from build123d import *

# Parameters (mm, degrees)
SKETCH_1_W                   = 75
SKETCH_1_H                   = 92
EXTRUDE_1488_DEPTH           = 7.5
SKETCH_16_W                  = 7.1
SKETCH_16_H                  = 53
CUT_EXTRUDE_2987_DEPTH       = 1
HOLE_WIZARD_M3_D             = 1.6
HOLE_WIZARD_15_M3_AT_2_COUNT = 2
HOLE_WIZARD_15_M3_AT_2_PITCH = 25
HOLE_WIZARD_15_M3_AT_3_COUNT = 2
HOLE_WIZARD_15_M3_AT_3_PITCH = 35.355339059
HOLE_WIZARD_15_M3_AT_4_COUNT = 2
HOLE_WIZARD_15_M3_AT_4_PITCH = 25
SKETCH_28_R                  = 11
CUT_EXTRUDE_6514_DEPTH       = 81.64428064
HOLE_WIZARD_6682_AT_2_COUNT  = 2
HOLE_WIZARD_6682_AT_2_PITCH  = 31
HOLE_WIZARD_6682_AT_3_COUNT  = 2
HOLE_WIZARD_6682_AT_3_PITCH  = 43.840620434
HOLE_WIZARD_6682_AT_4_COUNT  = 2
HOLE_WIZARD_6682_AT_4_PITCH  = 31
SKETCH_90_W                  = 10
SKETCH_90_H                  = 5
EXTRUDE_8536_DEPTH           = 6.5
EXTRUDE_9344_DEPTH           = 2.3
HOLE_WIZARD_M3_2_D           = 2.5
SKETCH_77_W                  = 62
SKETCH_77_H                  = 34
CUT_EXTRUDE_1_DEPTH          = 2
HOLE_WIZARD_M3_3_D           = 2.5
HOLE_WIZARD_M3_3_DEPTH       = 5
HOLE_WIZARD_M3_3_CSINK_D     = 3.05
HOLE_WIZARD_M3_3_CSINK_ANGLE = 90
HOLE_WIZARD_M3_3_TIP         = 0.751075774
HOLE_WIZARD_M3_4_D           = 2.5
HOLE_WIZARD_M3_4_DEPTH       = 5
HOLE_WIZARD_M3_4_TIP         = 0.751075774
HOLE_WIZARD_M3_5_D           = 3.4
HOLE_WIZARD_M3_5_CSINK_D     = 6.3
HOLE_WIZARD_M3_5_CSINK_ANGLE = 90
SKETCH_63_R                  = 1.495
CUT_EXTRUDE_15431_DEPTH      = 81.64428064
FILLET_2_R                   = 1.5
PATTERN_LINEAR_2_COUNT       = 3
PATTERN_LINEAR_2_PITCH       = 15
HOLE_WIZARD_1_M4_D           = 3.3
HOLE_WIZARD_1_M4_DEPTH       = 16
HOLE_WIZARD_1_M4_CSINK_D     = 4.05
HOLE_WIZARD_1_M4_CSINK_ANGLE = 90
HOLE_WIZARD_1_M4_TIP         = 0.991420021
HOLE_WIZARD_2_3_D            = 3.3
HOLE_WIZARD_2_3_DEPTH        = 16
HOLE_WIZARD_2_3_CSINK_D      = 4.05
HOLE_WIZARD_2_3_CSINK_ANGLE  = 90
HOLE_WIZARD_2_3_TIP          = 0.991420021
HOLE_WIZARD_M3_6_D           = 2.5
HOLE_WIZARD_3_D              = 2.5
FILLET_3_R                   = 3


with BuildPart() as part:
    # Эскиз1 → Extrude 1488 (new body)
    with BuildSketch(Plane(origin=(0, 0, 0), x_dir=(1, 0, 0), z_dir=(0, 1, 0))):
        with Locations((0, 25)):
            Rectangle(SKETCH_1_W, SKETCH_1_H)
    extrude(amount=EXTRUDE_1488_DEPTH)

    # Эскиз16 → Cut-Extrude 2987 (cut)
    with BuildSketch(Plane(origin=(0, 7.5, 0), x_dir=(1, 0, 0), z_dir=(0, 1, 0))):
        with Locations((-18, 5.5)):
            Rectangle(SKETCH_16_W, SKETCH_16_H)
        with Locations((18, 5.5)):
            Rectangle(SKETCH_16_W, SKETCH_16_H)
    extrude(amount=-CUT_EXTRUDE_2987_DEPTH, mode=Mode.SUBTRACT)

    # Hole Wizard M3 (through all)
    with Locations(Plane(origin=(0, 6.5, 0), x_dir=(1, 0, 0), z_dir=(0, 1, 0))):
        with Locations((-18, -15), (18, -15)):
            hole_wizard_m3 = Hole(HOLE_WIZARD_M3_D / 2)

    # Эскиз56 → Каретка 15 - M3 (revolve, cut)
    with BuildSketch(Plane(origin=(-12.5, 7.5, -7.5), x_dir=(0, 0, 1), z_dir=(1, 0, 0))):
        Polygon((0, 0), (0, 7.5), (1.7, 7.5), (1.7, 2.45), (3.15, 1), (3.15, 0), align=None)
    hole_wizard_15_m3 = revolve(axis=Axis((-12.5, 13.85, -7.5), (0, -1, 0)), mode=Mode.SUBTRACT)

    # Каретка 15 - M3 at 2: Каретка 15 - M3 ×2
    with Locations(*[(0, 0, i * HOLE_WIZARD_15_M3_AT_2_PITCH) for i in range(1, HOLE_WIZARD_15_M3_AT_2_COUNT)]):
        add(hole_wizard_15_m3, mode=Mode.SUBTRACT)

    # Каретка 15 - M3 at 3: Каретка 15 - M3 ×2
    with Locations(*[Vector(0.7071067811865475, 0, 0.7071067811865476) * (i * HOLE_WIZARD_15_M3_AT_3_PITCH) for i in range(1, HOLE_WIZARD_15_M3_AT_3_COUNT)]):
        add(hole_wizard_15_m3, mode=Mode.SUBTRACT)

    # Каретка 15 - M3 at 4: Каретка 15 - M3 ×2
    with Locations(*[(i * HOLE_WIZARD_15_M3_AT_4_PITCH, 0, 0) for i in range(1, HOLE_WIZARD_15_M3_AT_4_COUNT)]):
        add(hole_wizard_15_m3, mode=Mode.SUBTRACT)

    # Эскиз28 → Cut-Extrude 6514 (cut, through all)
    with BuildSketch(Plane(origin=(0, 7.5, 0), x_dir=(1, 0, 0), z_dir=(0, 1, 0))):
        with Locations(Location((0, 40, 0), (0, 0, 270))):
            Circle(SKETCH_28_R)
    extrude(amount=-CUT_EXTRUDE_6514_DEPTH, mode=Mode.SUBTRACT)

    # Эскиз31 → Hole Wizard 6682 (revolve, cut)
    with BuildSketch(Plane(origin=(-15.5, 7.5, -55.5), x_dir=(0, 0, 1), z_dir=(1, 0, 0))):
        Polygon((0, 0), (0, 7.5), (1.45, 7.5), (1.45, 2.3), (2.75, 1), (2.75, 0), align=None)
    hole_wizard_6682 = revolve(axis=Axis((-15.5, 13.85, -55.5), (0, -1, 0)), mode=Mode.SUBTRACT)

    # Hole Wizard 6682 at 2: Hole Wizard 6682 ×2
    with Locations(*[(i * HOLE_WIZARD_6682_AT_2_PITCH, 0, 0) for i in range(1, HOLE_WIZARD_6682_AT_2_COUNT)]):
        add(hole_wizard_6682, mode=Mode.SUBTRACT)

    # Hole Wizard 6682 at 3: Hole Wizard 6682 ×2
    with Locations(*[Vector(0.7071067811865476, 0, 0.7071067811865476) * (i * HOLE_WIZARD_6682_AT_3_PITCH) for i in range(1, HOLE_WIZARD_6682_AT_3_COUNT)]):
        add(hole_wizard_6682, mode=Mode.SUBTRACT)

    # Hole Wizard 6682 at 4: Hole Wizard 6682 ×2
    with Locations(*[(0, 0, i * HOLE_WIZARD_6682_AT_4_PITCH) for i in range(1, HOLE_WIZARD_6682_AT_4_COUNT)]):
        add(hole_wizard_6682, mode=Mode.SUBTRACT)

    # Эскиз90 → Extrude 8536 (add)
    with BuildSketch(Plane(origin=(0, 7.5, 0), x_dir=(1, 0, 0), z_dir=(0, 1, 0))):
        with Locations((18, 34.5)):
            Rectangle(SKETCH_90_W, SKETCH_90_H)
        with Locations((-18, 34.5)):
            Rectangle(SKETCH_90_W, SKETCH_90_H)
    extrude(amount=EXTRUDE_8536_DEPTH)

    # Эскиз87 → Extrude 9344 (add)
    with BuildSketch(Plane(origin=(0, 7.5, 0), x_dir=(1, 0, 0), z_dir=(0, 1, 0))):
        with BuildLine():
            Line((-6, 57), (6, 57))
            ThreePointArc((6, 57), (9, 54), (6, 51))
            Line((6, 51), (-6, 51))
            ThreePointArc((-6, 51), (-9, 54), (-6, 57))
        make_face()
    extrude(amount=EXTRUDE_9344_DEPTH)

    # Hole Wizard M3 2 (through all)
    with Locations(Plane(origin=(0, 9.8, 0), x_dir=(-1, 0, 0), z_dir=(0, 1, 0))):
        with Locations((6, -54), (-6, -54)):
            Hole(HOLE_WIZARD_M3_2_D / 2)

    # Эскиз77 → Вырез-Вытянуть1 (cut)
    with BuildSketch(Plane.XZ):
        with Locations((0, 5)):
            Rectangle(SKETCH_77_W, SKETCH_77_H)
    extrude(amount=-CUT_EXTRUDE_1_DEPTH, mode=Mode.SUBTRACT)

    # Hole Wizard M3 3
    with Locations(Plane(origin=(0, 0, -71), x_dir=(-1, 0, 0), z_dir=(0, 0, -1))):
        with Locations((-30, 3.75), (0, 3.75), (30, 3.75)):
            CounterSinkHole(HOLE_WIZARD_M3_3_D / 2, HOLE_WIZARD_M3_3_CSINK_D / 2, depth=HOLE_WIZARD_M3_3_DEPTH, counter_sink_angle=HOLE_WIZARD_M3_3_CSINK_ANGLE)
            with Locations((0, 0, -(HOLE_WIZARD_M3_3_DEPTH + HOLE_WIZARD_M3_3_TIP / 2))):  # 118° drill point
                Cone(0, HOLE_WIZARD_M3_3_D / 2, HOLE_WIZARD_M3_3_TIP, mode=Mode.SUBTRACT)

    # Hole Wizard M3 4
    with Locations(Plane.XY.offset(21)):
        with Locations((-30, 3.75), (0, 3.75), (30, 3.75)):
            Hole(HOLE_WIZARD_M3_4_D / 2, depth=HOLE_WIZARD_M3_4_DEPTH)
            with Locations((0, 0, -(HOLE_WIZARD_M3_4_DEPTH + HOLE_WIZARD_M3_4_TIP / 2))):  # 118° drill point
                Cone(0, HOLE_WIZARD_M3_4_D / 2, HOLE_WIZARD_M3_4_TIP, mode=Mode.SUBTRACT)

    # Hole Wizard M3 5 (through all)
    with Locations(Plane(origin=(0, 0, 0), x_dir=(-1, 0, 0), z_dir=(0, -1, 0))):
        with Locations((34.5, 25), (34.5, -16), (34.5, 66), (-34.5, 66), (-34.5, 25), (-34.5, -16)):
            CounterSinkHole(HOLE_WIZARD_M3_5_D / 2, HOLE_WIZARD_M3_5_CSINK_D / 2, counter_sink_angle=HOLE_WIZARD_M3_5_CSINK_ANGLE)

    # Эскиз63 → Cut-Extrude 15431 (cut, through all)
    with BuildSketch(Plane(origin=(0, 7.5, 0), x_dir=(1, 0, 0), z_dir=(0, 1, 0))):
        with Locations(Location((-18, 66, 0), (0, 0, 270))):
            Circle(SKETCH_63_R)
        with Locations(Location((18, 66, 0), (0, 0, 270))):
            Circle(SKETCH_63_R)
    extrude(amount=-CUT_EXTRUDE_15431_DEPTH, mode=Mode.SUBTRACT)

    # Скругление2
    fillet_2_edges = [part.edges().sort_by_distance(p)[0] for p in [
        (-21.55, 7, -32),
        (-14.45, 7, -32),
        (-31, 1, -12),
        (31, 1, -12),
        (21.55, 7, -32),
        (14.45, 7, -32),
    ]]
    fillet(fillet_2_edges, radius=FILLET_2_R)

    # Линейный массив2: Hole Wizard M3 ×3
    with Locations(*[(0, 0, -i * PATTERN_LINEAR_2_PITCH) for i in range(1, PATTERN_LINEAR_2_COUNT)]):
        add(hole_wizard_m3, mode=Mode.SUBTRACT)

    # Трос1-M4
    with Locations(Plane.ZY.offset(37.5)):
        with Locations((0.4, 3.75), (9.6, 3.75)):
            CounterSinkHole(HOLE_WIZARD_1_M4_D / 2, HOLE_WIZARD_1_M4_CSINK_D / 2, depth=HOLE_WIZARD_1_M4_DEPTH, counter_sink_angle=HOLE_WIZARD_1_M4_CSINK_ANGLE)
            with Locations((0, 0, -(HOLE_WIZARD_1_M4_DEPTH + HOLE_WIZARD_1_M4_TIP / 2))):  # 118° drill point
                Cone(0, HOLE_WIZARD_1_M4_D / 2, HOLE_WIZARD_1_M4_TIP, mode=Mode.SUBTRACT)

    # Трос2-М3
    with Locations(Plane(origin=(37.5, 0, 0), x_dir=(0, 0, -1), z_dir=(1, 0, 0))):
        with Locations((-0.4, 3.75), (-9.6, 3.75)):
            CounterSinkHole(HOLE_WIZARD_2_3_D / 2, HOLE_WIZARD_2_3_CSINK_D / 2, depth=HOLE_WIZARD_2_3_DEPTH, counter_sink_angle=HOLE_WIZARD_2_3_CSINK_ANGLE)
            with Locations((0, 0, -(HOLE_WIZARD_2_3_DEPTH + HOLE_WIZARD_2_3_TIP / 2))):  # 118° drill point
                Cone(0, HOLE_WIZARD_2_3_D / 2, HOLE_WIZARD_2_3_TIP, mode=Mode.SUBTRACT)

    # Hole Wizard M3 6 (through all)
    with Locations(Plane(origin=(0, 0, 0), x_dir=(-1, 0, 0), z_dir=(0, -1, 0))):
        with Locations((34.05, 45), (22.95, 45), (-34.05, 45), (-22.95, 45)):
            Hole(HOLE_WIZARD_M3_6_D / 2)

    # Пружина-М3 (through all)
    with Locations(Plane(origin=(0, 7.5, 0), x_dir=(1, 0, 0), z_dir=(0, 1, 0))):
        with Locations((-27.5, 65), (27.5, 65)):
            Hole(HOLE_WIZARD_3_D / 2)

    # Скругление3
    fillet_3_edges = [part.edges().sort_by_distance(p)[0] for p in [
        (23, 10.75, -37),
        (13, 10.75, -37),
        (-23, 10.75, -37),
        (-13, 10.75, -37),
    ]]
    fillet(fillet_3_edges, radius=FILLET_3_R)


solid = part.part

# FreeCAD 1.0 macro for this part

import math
import FreeCAD as App
import Part
import Sketcher
from FreeCAD import Vector
Q = App.Units.Quantity


def edges_at(feature, points):
    """Names of the edges that pass closest to the given points."""
    edges = feature.Shape.Edges
    near = lambda p: min(range(len(edges)), key=lambda i: edges[i].distToShape(Part.Vertex(*p))[0])
    return sorted({f"Edge{near(p) + 1}" for p in points})

doc = App.newDocument("Part")
body = doc.addObject("PartDesign::Body", "Body")

sketch1 = doc.addObject("Sketcher::SketchObject", "Sketch")
body.addObject(sketch1)
sketch1.AttachmentSupport = (doc.XZ_Plane, [""])
sketch1.MapMode = "FlatFace"
sketch1.addGeometry([
    Part.LineSegment(Vector(-38, -71, 0), Vector(-38, 21, 0)),
    Part.LineSegment(Vector(-38, 21, 0), Vector(38, 21, 0)),
    Part.LineSegment(Vector(38, 21, 0), Vector(38, -71, 0)),
    Part.LineSegment(Vector(38, -71, 0), Vector(-38, -71, 0)),
], False)
sketch1.addConstraint([
    Sketcher.Constraint("Coincident", 0, 2, 1, 1),
    Sketcher.Constraint("Coincident", 1, 2, 2, 1),
    Sketcher.Constraint("Coincident", 2, 2, 3, 1),
    Sketcher.Constraint("Coincident", 3, 2, 0, 1),
    Sketcher.Constraint("Vertical", 0),
    Sketcher.Constraint("Horizontal", 1),
    Sketcher.Constraint("Vertical", 2),
    Sketcher.Constraint("Horizontal", 3),
    Sketcher.Constraint("DistanceX", 1, 1, 1, 2, Q("75 mm")),
    Sketcher.Constraint("DistanceY", 0, 1, 0, 2, Q("92 mm")),
    Sketcher.Constraint("DistanceY", -1, 1, 0, 2, Q("21 mm")),
    Sketcher.Constraint("DistanceX", 0, 2, -1, 1, Q("37.5 mm")),
])
pad1 = doc.addObject("PartDesign::Pad", "Pad")
body.addObject(pad1)
pad1.Profile = sketch1
pad1.Length = 7.5
pad1.Reversed = True

sketch2 = doc.addObject("Sketcher::SketchObject", "Sketch001")
body.addObject(sketch2)
sketch2.AttachmentSupport = (doc.XZ_Plane, [""])
sketch2.MapMode = "FlatFace"
sketch2.AttachmentOffset = App.Placement(Vector(0, 0, -7.5), App.Rotation())
sketch2.addGeometry([
    Part.LineSegment(Vector(-22, -32, 0), Vector(-22, 21, 0)),
    Part.LineSegment(Vector(-22, 21, 0), Vector(-14, 21, 0)),
    Part.LineSegment(Vector(-14, 21, 0), Vector(-14, -32, 0)),
    Part.LineSegment(Vector(-14, -32, 0), Vector(-22, -32, 0)),
    Part.LineSegment(Vector(14, -32, 0), Vector(14, 21, 0)),
    Part.LineSegment(Vector(14, 21, 0), Vector(22, 21, 0)),
    Part.LineSegment(Vector(22, 21, 0), Vector(22, -32, 0)),
    Part.LineSegment(Vector(22, -32, 0), Vector(14, -32, 0)),
], False)
sketch2.addConstraint([
    Sketcher.Constraint("Coincident", 0, 2, 1, 1),
    Sketcher.Constraint("Coincident", 1, 2, 2, 1),
    Sketcher.Constraint("Coincident", 2, 2, 3, 1),
    Sketcher.Constraint("Coincident", 3, 2, 0, 1),
    Sketcher.Constraint("Coincident", 4, 2, 5, 1),
    Sketcher.Constraint("Coincident", 5, 2, 6, 1),
    Sketcher.Constraint("Coincident", 6, 2, 7, 1),
    Sketcher.Constraint("Coincident", 7, 2, 4, 1),
    Sketcher.Constraint("Vertical", 0),
    Sketcher.Constraint("Horizontal", 1),
    Sketcher.Constraint("Vertical", 2),
    Sketcher.Constraint("Horizontal", 3),
    Sketcher.Constraint("Vertical", 4),
    Sketcher.Constraint("Horizontal", 5),
    Sketcher.Constraint("Vertical", 6),
    Sketcher.Constraint("Horizontal", 7),
    Sketcher.Constraint("Symmetric", 1, 2, 4, 2, -2),
    Sketcher.Constraint("Symmetric", 3, 2, 6, 2, -2),
    Sketcher.Constraint("DistanceY", 0, 1, 0, 2, Q("53 mm")),
    Sketcher.Constraint("DistanceX", 1, 1, 1, 2, Q("7.1 mm")),
    Sketcher.Constraint("DistanceY", -1, 1, 0, 2, Q("21 mm")),
    Sketcher.Constraint("DistanceX", 0, 2, 4, 2, Q("36 mm")),
])
pocket1 = doc.addObject("PartDesign::Pocket", "Pocket")
body.addObject(pocket1)
pocket1.Profile = sketch2
pocket1.Length = 1
pocket1.Reversed = True

sketch3 = doc.addObject("Sketcher::SketchObject", "Sketch002")
body.addObject(sketch3)
sketch3.AttachmentSupport = (doc.XZ_Plane, [""])
sketch3.MapMode = "FlatFace"
sketch3.AttachmentOffset = App.Placement(Vector(0, 0, -6.5), App.Rotation())
sketch3.addGeometry([
    Part.Circle(Vector(-18, 15, 0), Vector(0, 0, 1), 0.8),
    Part.Circle(Vector(18, 15, 0), Vector(0, 0, 1), 0.8),
], False)
sketch3.addConstraint([
    Sketcher.Constraint("Equal", 0, 1),
    Sketcher.Constraint("Symmetric", 0, 3, 1, 3, -2),
    Sketcher.Constraint("Diameter", 0, Q("1.6 mm")),
    Sketcher.Constraint("DistanceX", 0, 3, -1, 1, Q("18 mm")),
    Sketcher.Constraint("DistanceY", -1, 1, 0, 3, Q("15 mm")),
])
doc.recompute()
hole = doc.addObject("PartDesign::Hole", "Hole")
body.addObject(hole)
hole.Profile = sketch3
hole.ThreadType = "None"
hole.Diameter = 1.6
hole.DepthType = "ThroughAll"
hole.Reversed = True

sketch4 = doc.addObject("Sketcher::SketchObject", "Sketch003")
body.addObject(sketch4)
sketch4.AttachmentSupport = (doc.YZ_Plane, [""])
sketch4.MapMode = "FlatFace"
sketch4.AttachmentOffset = App.Placement(Vector(0, 0, -12.5), App.Rotation())
sketch4.addGeometry([
    Part.LineSegment(Vector(0, -7.5, 0), Vector(7.5, -7.5, 0)),
    Part.LineSegment(Vector(7.5, -7.5, 0), Vector(7.5, -4.3, 0)),
    Part.LineSegment(Vector(7.5, -4.3, 0), Vector(6.5, -4.3, 0)),
    Part.LineSegment(Vector(6.5, -4.3, 0), Vector(5, -5.8, 0)),
    Part.LineSegment(Vector(5, -5.8, 0), Vector(0, -5.8, 0)),
    Part.LineSegment(Vector(0, -5.8, 0), Vector(0, -7.5, 0)),
], False)
sketch4.addGeometry(Part.LineSegment(Vector(7.5, -7.5, 0), Vector(0, -7.5, 0)), True)
sketch4.addConstraint([
    Sketcher.Constraint("Coincident", 0, 2, 1, 1),
    Sketcher.Constraint("Coincident", 1, 2, 2, 1),
    Sketcher.Constraint("Coincident", 2, 2, 3, 1),
    Sketcher.Constraint("Coincident", 3, 2, 4, 1),
    Sketcher.Constraint("Coincident", 4, 2, 5, 1),
    Sketcher.Constraint("Coincident", 5, 2, 0, 1),
    Sketcher.Constraint("Horizontal", 0),
    Sketcher.Constraint("Vertical", 1),
    Sketcher.Constraint("Horizontal", 2),
    Sketcher.Constraint("Horizontal", 4),
    Sketcher.Constraint("Vertical", 5),
    Sketcher.Constraint("Horizontal", 6),
    Sketcher.Constraint("Coincident", 6, 1, 0, 2),
    Sketcher.Constraint("PointOnObject", 4, 2, -2),
    Sketcher.Constraint("PointOnObject", 6, 2, -2),
    Sketcher.Constraint("DistanceX", 2, 2, 2, 1, Q("1 mm")),
    Sketcher.Constraint("Angle", 3, Q("-135 deg")),
    Sketcher.Constraint("DistanceX", 0, 1, 0, 2, Q("7.5 mm")),
    Sketcher.Constraint("DistanceY", 5, 2, 5, 1, Q("1.7 mm")),
    Sketcher.Constraint("DistanceX", 4, 2, 4, 1, Q("5.05 mm")),
    Sketcher.Constraint("DistanceY", 0, 2, -1, 1, Q("7.5 mm")),
])
groove = doc.addObject("PartDesign::Groove", "Groove")
body.addObject(groove)
groove.Profile = sketch4
groove.ReferenceAxis = (sketch4, ["Axis0"])
groove.Angle = 360
doc.recompute()

linearpattern = doc.addObject("PartDesign::LinearPattern", "LinearPattern")
body.addObject(linearpattern)
linearpattern.Originals = [groove]
linearpattern.Direction = (doc.Z_Axis, [""])
linearpattern.Mode = "offset"
linearpattern.Offset = 25
linearpattern.Occurrences = 2
body.Tip = linearpattern
doc.recompute()

datumline = doc.addObject("PartDesign::Line", "DatumLine")
body.addObject(datumline)
datumline.Placement = App.Placement(Vector(0, 0, 0), App.Rotation(Vector(0, 0, 1), Vector(0.707106781, 0, 0.707106781)))
linearpattern2 = doc.addObject("PartDesign::LinearPattern", "LinearPattern001")
body.addObject(linearpattern2)
linearpattern2.Originals = [groove]
linearpattern2.Direction = (datumline, [""])
linearpattern2.Mode = "offset"
linearpattern2.Offset = 35.355339
linearpattern2.Occurrences = 2
body.Tip = linearpattern2
doc.recompute()

linearpattern3 = doc.addObject("PartDesign::LinearPattern", "LinearPattern002")
body.addObject(linearpattern3)
linearpattern3.Originals = [groove]
linearpattern3.Direction = (doc.X_Axis, [""])
linearpattern3.Mode = "offset"
linearpattern3.Offset = 25
linearpattern3.Occurrences = 2
body.Tip = linearpattern3

sketch5 = doc.addObject("Sketcher::SketchObject", "Sketch004")
body.addObject(sketch5)
sketch5.AttachmentSupport = (doc.XZ_Plane, [""])
sketch5.MapMode = "FlatFace"
sketch5.AttachmentOffset = App.Placement(Vector(0, 0, -7.5), App.Rotation())
sketch5.addGeometry(Part.Circle(Vector(0, -40, 0), Vector(0, 0, 1), 11), False)
sketch5.addConstraint([
    Sketcher.Constraint("PointOnObject", 0, 3, -2),
    Sketcher.Constraint("Diameter", 0, Q("22 mm")),
    Sketcher.Constraint("DistanceY", 0, 3, -1, 1, Q("40 mm")),
])
pocket2 = doc.addObject("PartDesign::Pocket", "Pocket001")
body.addObject(pocket2)
pocket2.Profile = sketch5
pocket2.Type = "ThroughAll"
pocket2.Reversed = True

sketch6 = doc.addObject("Sketcher::SketchObject", "Sketch005")
body.addObject(sketch6)
sketch6.AttachmentSupport = (doc.YZ_Plane, [""])
sketch6.MapMode = "FlatFace"
sketch6.AttachmentOffset = App.Placement(Vector(0, 0, -15.5), App.Rotation())
sketch6.addGeometry([
    Part.LineSegment(Vector(0, -55.5, 0), Vector(7.5, -55.5, 0)),
    Part.LineSegment(Vector(7.5, -55.5, 0), Vector(7.5, -52.8, 0)),
    Part.LineSegment(Vector(7.5, -52.8, 0), Vector(6.5, -52.8, 0)),
    Part.LineSegment(Vector(6.5, -52.8, 0), Vector(5.2, -54, 0)),
    Part.LineSegment(Vector(5.2, -54, 0), Vector(0, -54, 0)),
    Part.LineSegment(Vector(0, -54, 0), Vector(0, -55.5, 0)),
], False)
sketch6.addGeometry(Part.LineSegment(Vector(7.5, -55.5, 0), Vector(0, -55.5, 0)), True)
sketch6.addConstraint([
    Sketcher.Constraint("Coincident", 0, 2, 1, 1),
    Sketcher.Constraint("Coincident", 1, 2, 2, 1),
    Sketcher.Constraint("Coincident", 2, 2, 3, 1),
    Sketcher.Constraint("Coincident", 3, 2, 4, 1),
    Sketcher.Constraint("Coincident", 4, 2, 5, 1),
    Sketcher.Constraint("Coincident", 5, 2, 0, 1),
    Sketcher.Constraint("Horizontal", 0),
    Sketcher.Constraint("Vertical", 1),
    Sketcher.Constraint("Horizontal", 2),
    Sketcher.Constraint("Horizontal", 4),
    Sketcher.Constraint("Vertical", 5),
    Sketcher.Constraint("Horizontal", 6),
    Sketcher.Constraint("Coincident", 6, 1, 0, 2),
    Sketcher.Constraint("PointOnObject", 4, 2, -2),
    Sketcher.Constraint("PointOnObject", 6, 2, -2),
    Sketcher.Constraint("DistanceX", 2, 2, 2, 1, Q("1 mm")),
    Sketcher.Constraint("Angle", 3, Q("-135 deg")),
    Sketcher.Constraint("DistanceX", 0, 1, 0, 2, Q("7.5 mm")),
    Sketcher.Constraint("DistanceX", 4, 2, 4, 1, Q("5.2 mm")),
    Sketcher.Constraint("DistanceY", 1, 1, 1, 2, Q("2.75 mm")),
    Sketcher.Constraint("DistanceY", 0, 2, -1, 1, Q("55.5 mm")),
])
groove2 = doc.addObject("PartDesign::Groove", "Groove001")
body.addObject(groove2)
groove2.Profile = sketch6
groove2.ReferenceAxis = (sketch6, ["Axis0"])
groove2.Angle = 360
doc.recompute()

linearpattern4 = doc.addObject("PartDesign::LinearPattern", "LinearPattern003")
body.addObject(linearpattern4)
linearpattern4.Originals = [groove2]
linearpattern4.Direction = (doc.X_Axis, [""])
linearpattern4.Mode = "offset"
linearpattern4.Offset = 31
linearpattern4.Occurrences = 2
body.Tip = linearpattern4
doc.recompute()

datumline2 = doc.addObject("PartDesign::Line", "DatumLine001")
body.addObject(datumline2)
datumline2.Placement = App.Placement(Vector(0, 0, 0), App.Rotation(Vector(0, 0, 1), Vector(0.707106781, 0, 0.707106781)))
linearpattern5 = doc.addObject("PartDesign::LinearPattern", "LinearPattern004")
body.addObject(linearpattern5)
linearpattern5.Originals = [groove2]
linearpattern5.Direction = (datumline2, [""])
linearpattern5.Mode = "offset"
linearpattern5.Offset = 43.84062
linearpattern5.Occurrences = 2
body.Tip = linearpattern5
doc.recompute()

linearpattern6 = doc.addObject("PartDesign::LinearPattern", "LinearPattern005")
body.addObject(linearpattern6)
linearpattern6.Originals = [groove2]
linearpattern6.Direction = (doc.Z_Axis, [""])
linearpattern6.Mode = "offset"
linearpattern6.Offset = 31
linearpattern6.Occurrences = 2
body.Tip = linearpattern6

sketch7 = doc.addObject("Sketcher::SketchObject", "Sketch006")
body.addObject(sketch7)
sketch7.AttachmentSupport = (doc.XZ_Plane, [""])
sketch7.MapMode = "FlatFace"
sketch7.AttachmentOffset = App.Placement(Vector(0, 0, -7.5), App.Rotation())
sketch7.addGeometry([
    Part.LineSegment(Vector(13, -37, 0), Vector(13, -32, 0)),
    Part.LineSegment(Vector(13, -32, 0), Vector(23, -32, 0)),
    Part.LineSegment(Vector(23, -32, 0), Vector(23, -37, 0)),
    Part.LineSegment(Vector(23, -37, 0), Vector(13, -37, 0)),
    Part.LineSegment(Vector(-23, -37, 0), Vector(-23, -32, 0)),
    Part.LineSegment(Vector(-23, -32, 0), Vector(-13, -32, 0)),
    Part.LineSegment(Vector(-13, -32, 0), Vector(-13, -37, 0)),
    Part.LineSegment(Vector(-13, -37, 0), Vector(-23, -37, 0)),
], False)
sketch7.addConstraint([
    Sketcher.Constraint("Coincident", 0, 2, 1, 1),
    Sketcher.Constraint("Coincident", 1, 2, 2, 1),
    Sketcher.Constraint("Coincident", 2, 2, 3, 1),
    Sketcher.Constraint("Coincident", 3, 2, 0, 1),
    Sketcher.Constraint("Coincident", 4, 2, 5, 1),
    Sketcher.Constraint("Coincident", 5, 2, 6, 1),
    Sketcher.Constraint("Coincident", 6, 2, 7, 1),
    Sketcher.Constraint("Coincident", 7, 2, 4, 1),
    Sketcher.Constraint("Vertical", 0),
    Sketcher.Constraint("Horizontal", 1),
    Sketcher.Constraint("Vertical", 2),
    Sketcher.Constraint("Horizontal", 3),
    Sketcher.Constraint("Vertical", 4),
    Sketcher.Constraint("Horizontal", 5),
    Sketcher.Constraint("Vertical", 6),
    Sketcher.Constraint("Horizontal", 7),
    Sketcher.Constraint("Symmetric", 1, 2, 4, 2, -2),
    Sketcher.Constraint("Symmetric", 3, 2, 6, 2, -2),
    Sketcher.Constraint("DistanceX", 1, 1, 1, 2, Q("10 mm")),
    Sketcher.Constraint("DistanceY", 0, 1, 0, 2, Q("5 mm")),
    Sketcher.Constraint("DistanceX", -1, 1, 0, 2, Q("13 mm")),
    Sketcher.Constraint("DistanceY", 0, 2, -1, 1, Q("32 mm")),
])
pad2 = doc.addObject("PartDesign::Pad", "Pad001")
body.addObject(pad2)
pad2.Profile = sketch7
pad2.Length = 6.5
pad2.Reversed = True

sketch8 = doc.addObject("Sketcher::SketchObject", "Sketch007")
body.addObject(sketch8)
sketch8.AttachmentSupport = (doc.XZ_Plane, [""])
sketch8.MapMode = "FlatFace"
sketch8.AttachmentOffset = App.Placement(Vector(0, 0, -7.5), App.Rotation())
sketch8.addGeometry([
    Part.LineSegment(Vector(6, -57, 0), Vector(-6, -57, 0)),
    Part.ArcOfCircle(Part.Circle(Vector(-6, -54, 0), Vector(0, 0, 1), 3), math.radians(90), math.radians(270)),
    Part.LineSegment(Vector(-6, -51, 0), Vector(6, -51, 0)),
    Part.ArcOfCircle(Part.Circle(Vector(6, -54, 0), Vector(0, 0, 1), 3), math.radians(-90), math.radians(90)),
], False)
sketch8.addConstraint([
    Sketcher.Constraint("Tangent", 0, 2, 1, 2),
    Sketcher.Constraint("Tangent", 1, 1, 2, 1),
    Sketcher.Constraint("Tangent", 2, 2, 3, 2),
    Sketcher.Constraint("Tangent", 3, 1, 0, 1),
    Sketcher.Constraint("Horizontal", 0),
    Sketcher.Constraint("Horizontal", 2),
    Sketcher.Constraint("Radius", 1, Q("3 mm")),
    Sketcher.Constraint("DistanceX", 0, 2, 0, 1, Q("12 mm")),
    Sketcher.Constraint("DistanceX", 1, 3, -1, 1, Q("6 mm")),
    Sketcher.Constraint("DistanceY", 1, 3, -1, 1, Q("54 mm")),
])
pad3 = doc.addObject("PartDesign::Pad", "Pad002")
body.addObject(pad3)
pad3.Profile = sketch8
pad3.Length = 2.3
pad3.Reversed = True

sketch9 = doc.addObject("Sketcher::SketchObject", "Sketch008")
body.addObject(sketch9)
sketch9.AttachmentSupport = (doc.XZ_Plane, [""])
sketch9.MapMode = "FlatFace"
sketch9.AttachmentOffset = App.Placement(Vector(0, 0, -9.8), App.Rotation())
sketch9.addGeometry([
    Part.Circle(Vector(-6, -54, 0), Vector(0, 0, 1), 1.2),
    Part.Circle(Vector(6, -54, 0), Vector(0, 0, 1), 1.2),
], False)
sketch9.addConstraint([
    Sketcher.Constraint("Equal", 0, 1),
    Sketcher.Constraint("Symmetric", 0, 3, 1, 3, -2),
    Sketcher.Constraint("Diameter", 0, Q("2.5 mm")),
    Sketcher.Constraint("DistanceX", 0, 3, -1, 1, Q("6 mm")),
    Sketcher.Constraint("DistanceY", 0, 3, -1, 1, Q("54 mm")),
])
doc.recompute()
hole2 = doc.addObject("PartDesign::Hole", "Hole001")
body.addObject(hole2)
hole2.Profile = sketch9
hole2.ThreadType = "None"
hole2.Diameter = 2.5
hole2.DepthType = "ThroughAll"
hole2.Reversed = True

sketch10 = doc.addObject("Sketcher::SketchObject", "Sketch009")
body.addObject(sketch10)
sketch10.AttachmentSupport = (doc.XZ_Plane, [""])
sketch10.MapMode = "FlatFace"
sketch10.addGeometry([
    Part.LineSegment(Vector(-31, 22, 0), Vector(-31, -12, 0)),
    Part.LineSegment(Vector(-31, -12, 0), Vector(31, -12, 0)),
    Part.LineSegment(Vector(31, -12, 0), Vector(31, 22, 0)),
    Part.LineSegment(Vector(31, 22, 0), Vector(-31, 22, 0)),
], False)
sketch10.addConstraint([
    Sketcher.Constraint("Coincident", 0, 2, 1, 1),
    Sketcher.Constraint("Coincident", 1, 2, 2, 1),
    Sketcher.Constraint("Coincident", 2, 2, 3, 1),
    Sketcher.Constraint("Coincident", 3, 2, 0, 1),
    Sketcher.Constraint("Vertical", 0),
    Sketcher.Constraint("Horizontal", 1),
    Sketcher.Constraint("Vertical", 2),
    Sketcher.Constraint("Horizontal", 3),
    Sketcher.Constraint("DistanceX", 1, 1, 1, 2, Q("62 mm")),
    Sketcher.Constraint("DistanceY", 0, 2, 0, 1, Q("34 mm")),
    Sketcher.Constraint("DistanceX", 0, 2, -1, 1, Q("31 mm")),
    Sketcher.Constraint("DistanceY", 0, 2, -1, 1, Q("12 mm")),
])
pocket3 = doc.addObject("PartDesign::Pocket", "Pocket002")
body.addObject(pocket3)
pocket3.Profile = sketch10
pocket3.Length = 2

sketch11 = doc.addObject("Sketcher::SketchObject", "Sketch010")
body.addObject(sketch11)
sketch11.AttachmentSupport = (doc.XY_Plane, [""])
sketch11.MapMode = "FlatFace"
sketch11.AttachmentOffset = App.Placement(Vector(0, 0, -71), App.Rotation())
sketch11.addGeometry([
    Part.Circle(Vector(30, 3.8, 0), Vector(0, 0, 1), 1.2),
    Part.Circle(Vector(0, 3.8, 0), Vector(0, 0, 1), 1.2),
    Part.Circle(Vector(-30, 3.8, 0), Vector(0, 0, 1), 1.2),
], False)
sketch11.addConstraint([
    Sketcher.Constraint("Equal", 0, 1),
    Sketcher.Constraint("Equal", 1, 2),
    Sketcher.Constraint("Symmetric", 0, 3, 2, 3, -2),
    Sketcher.Constraint("PointOnObject", 1, 3, -2),
    Sketcher.Constraint("Horizontal", 0, 3, 1, 3),
    Sketcher.Constraint("Diameter", 0, Q("2.5 mm")),
    Sketcher.Constraint("DistanceX", -1, 1, 0, 3, Q("30 mm")),
    Sketcher.Constraint("DistanceY", -1, 1, 0, 3, Q("3.75 mm")),
])
doc.recompute()
hole3 = doc.addObject("PartDesign::Hole", "Hole002")
body.addObject(hole3)
hole3.Profile = sketch11
hole3.ThreadType = "None"
hole3.Diameter = 2.5
hole3.DepthType = "Dimension"
hole3.Depth = 5
hole3.DrillPoint = "Angled"
hole3.DrillPointAngle = 118
hole3.HoleCutType = "Countersink"
hole3.HoleCutDiameter = 3.05
hole3.HoleCutCountersinkAngle = 90
hole3.Reversed = True

sketch12 = doc.addObject("Sketcher::SketchObject", "Sketch011")
body.addObject(sketch12)
sketch12.AttachmentSupport = (doc.XY_Plane, [""])
sketch12.MapMode = "FlatFace"
sketch12.AttachmentOffset = App.Placement(Vector(0, 0, 21), App.Rotation())
sketch12.addGeometry([
    Part.Circle(Vector(-30, 3.8, 0), Vector(0, 0, 1), 1.2),
    Part.Circle(Vector(0, 3.8, 0), Vector(0, 0, 1), 1.2),
    Part.Circle(Vector(30, 3.8, 0), Vector(0, 0, 1), 1.2),
], False)
sketch12.addConstraint([
    Sketcher.Constraint("Equal", 0, 1),
    Sketcher.Constraint("Equal", 1, 2),
    Sketcher.Constraint("Symmetric", 0, 3, 2, 3, -2),
    Sketcher.Constraint("PointOnObject", 1, 3, -2),
    Sketcher.Constraint("Horizontal", 0, 3, 1, 3),
    Sketcher.Constraint("Diameter", 0, Q("2.5 mm")),
    Sketcher.Constraint("DistanceX", 0, 3, -1, 1, Q("30 mm")),
    Sketcher.Constraint("DistanceY", -1, 1, 0, 3, Q("3.75 mm")),
])
doc.recompute()
hole4 = doc.addObject("PartDesign::Hole", "Hole003")
body.addObject(hole4)
hole4.Profile = sketch12
hole4.ThreadType = "None"
hole4.Diameter = 2.5
hole4.DepthType = "Dimension"
hole4.Depth = 5
hole4.DrillPoint = "Angled"
hole4.DrillPointAngle = 118

sketch13 = doc.addObject("Sketcher::SketchObject", "Sketch012")
body.addObject(sketch13)
sketch13.AttachmentSupport = (doc.XZ_Plane, [""])
sketch13.MapMode = "FlatFace"
sketch13.addGeometry([
    Part.Circle(Vector(-34.5, -25, 0), Vector(0, 0, 1), 1.7),
    Part.Circle(Vector(-34.5, 16, 0), Vector(0, 0, 1), 1.7),
    Part.Circle(Vector(-34.5, -66, 0), Vector(0, 0, 1), 1.7),
    Part.Circle(Vector(34.5, -66, 0), Vector(0, 0, 1), 1.7),
    Part.Circle(Vector(34.5, -25, 0), Vector(0, 0, 1), 1.7),
    Part.Circle(Vector(34.5, 16, 0), Vector(0, 0, 1), 1.7),
], False)
sketch13.addConstraint([
    Sketcher.Constraint("Equal", 0, 1),
    Sketcher.Constraint("Equal", 1, 2),
    Sketcher.Constraint("Equal", 2, 3),
    Sketcher.Constraint("Equal", 3, 4),
    Sketcher.Constraint("Equal", 4, 5),
    Sketcher.Constraint("Symmetric", 2, 3, 3, 3, -2),
    Sketcher.Constraint("Symmetric", 0, 3, 4, 3, -2),
    Sketcher.Constraint("Symmetric", 1, 3, 5, 3, -2),
    Sketcher.Constraint("Vertical", 0, 3, 1, 3),
    Sketcher.Constraint("Vertical", 1, 3, 2, 3),
    Sketcher.Constraint("Diameter", 0, Q("3.4 mm")),
    Sketcher.Constraint("DistanceY", 0, 3, -1, 1, Q("25 mm")),
    Sketcher.Constraint("DistanceY", -1, 1, 1, 3, Q("16 mm")),
    Sketcher.Constraint("DistanceY", 2, 3, -1, 1, Q("66 mm")),
    Sketcher.Constraint("DistanceX", 2, 3, 3, 3, Q("69 mm")),
])
doc.recompute()
hole5 = doc.addObject("PartDesign::Hole", "Hole004")
body.addObject(hole5)
hole5.Profile = sketch13
hole5.ThreadType = "None"
hole5.Diameter = 3.4
hole5.DepthType = "ThroughAll"
hole5.HoleCutType = "Countersink"
hole5.HoleCutDiameter = 6.3
hole5.HoleCutCountersinkAngle = 90

sketch14 = doc.addObject("Sketcher::SketchObject", "Sketch013")
body.addObject(sketch14)
sketch14.AttachmentSupport = (doc.XZ_Plane, [""])
sketch14.MapMode = "FlatFace"
sketch14.AttachmentOffset = App.Placement(Vector(0, 0, -7.5), App.Rotation())
sketch14.addGeometry([
    Part.Circle(Vector(-18, -66, 0), Vector(0, 0, 1), 1.5),
    Part.Circle(Vector(18, -66, 0), Vector(0, 0, 1), 1.5),
], False)
sketch14.addConstraint([
    Sketcher.Constraint("Equal", 0, 1),
    Sketcher.Constraint("Symmetric", 0, 3, 1, 3, -2),
    Sketcher.Constraint("Diameter", 0, Q("2.99 mm")),
    Sketcher.Constraint("DistanceX", 0, 3, -1, 1, Q("18 mm")),
    Sketcher.Constraint("DistanceY", 0, 3, -1, 1, Q("66 mm")),
])
pocket4 = doc.addObject("PartDesign::Pocket", "Pocket003")
body.addObject(pocket4)
pocket4.Profile = sketch14
pocket4.Type = "ThroughAll"
pocket4.Reversed = True
doc.recompute()

fillet = doc.addObject("PartDesign::Fillet", "Fillet")
body.addObject(fillet)
fillet.Base = (pocket4, edges_at(pocket4, [
    (-21.55, 7, -32),
    (-14.45, 7, -32),
    (-31, 1, -12),
    (31, 1, -12),
    (21.55, 7, -32),
    (14.45, 7, -32),
]))
fillet.Radius = 1.5
doc.recompute()

linearpattern7 = doc.addObject("PartDesign::LinearPattern", "LinearPattern006")
body.addObject(linearpattern7)
linearpattern7.Originals = [hole]
linearpattern7.Direction = (doc.Z_Axis, [""])
linearpattern7.Mode = "offset"
linearpattern7.Offset = 15
linearpattern7.Occurrences = 3
linearpattern7.Reversed = True
body.Tip = linearpattern7

sketch15 = doc.addObject("Sketcher::SketchObject", "Sketch014")
body.addObject(sketch15)
sketch15.AttachmentSupport = (doc.YZ_Plane, [""])
sketch15.MapMode = "FlatFace"
sketch15.AttachmentOffset = App.Placement(Vector(0, 0, -37.5), App.Rotation())
sketch15.addGeometry([
    Part.Circle(Vector(3.8, 0.4, 0), Vector(0, 0, 1), 1.6),
    Part.Circle(Vector(3.8, 9.6, 0), Vector(0, 0, 1), 1.6),
], False)
sketch15.addConstraint([
    Sketcher.Constraint("Equal", 0, 1),
    Sketcher.Constraint("Vertical", 0, 3, 1, 3),
    Sketcher.Constraint("Diameter", 0, Q("3.3 mm")),
    Sketcher.Constraint("DistanceY", -1, 1, 0, 3, Q("0.4 mm")),
    Sketcher.Constraint("DistanceY", -1, 1, 1, 3, Q("9.6 mm")),
    Sketcher.Constraint("DistanceX", -1, 1, 0, 3, Q("3.75 mm")),
])
doc.recompute()
hole6 = doc.addObject("PartDesign::Hole", "Hole005")
body.addObject(hole6)
hole6.Profile = sketch15
hole6.ThreadType = "None"
hole6.Diameter = 3.3
hole6.DepthType = "Dimension"
hole6.Depth = 16
hole6.DrillPoint = "Angled"
hole6.DrillPointAngle = 118
hole6.HoleCutType = "Countersink"
hole6.HoleCutDiameter = 4.05
hole6.HoleCutCountersinkAngle = 90
hole6.Reversed = True

sketch16 = doc.addObject("Sketcher::SketchObject", "Sketch015")
body.addObject(sketch16)
sketch16.AttachmentSupport = (doc.YZ_Plane, [""])
sketch16.MapMode = "FlatFace"
sketch16.AttachmentOffset = App.Placement(Vector(0, 0, 37.5), App.Rotation())
sketch16.addGeometry([
    Part.Circle(Vector(3.8, 0.4, 0), Vector(0, 0, 1), 1.6),
    Part.Circle(Vector(3.8, 9.6, 0), Vector(0, 0, 1), 1.6),
], False)
sketch16.addConstraint([
    Sketcher.Constraint("Equal", 0, 1),
    Sketcher.Constraint("Vertical", 0, 3, 1, 3),
    Sketcher.Constraint("Diameter", 0, Q("3.3 mm")),
    Sketcher.Constraint("DistanceY", -1, 1, 0, 3, Q("0.4 mm")),
    Sketcher.Constraint("DistanceY", -1, 1, 1, 3, Q("9.6 mm")),
    Sketcher.Constraint("DistanceX", -1, 1, 0, 3, Q("3.75 mm")),
])
doc.recompute()
hole7 = doc.addObject("PartDesign::Hole", "Hole006")
body.addObject(hole7)
hole7.Profile = sketch16
hole7.ThreadType = "None"
hole7.Diameter = 3.3
hole7.DepthType = "Dimension"
hole7.Depth = 16
hole7.DrillPoint = "Angled"
hole7.DrillPointAngle = 118
hole7.HoleCutType = "Countersink"
hole7.HoleCutDiameter = 4.05
hole7.HoleCutCountersinkAngle = 90

sketch17 = doc.addObject("Sketcher::SketchObject", "Sketch016")
body.addObject(sketch17)
sketch17.AttachmentSupport = (doc.XZ_Plane, [""])
sketch17.MapMode = "FlatFace"
sketch17.addGeometry([
    Part.Circle(Vector(-34, -45, 0), Vector(0, 0, 1), 1.2),
    Part.Circle(Vector(-22.9, -45, 0), Vector(0, 0, 1), 1.2),
    Part.Circle(Vector(34, -45, 0), Vector(0, 0, 1), 1.2),
    Part.Circle(Vector(22.9, -45, 0), Vector(0, 0, 1), 1.2),
], False)
sketch17.addConstraint([
    Sketcher.Constraint("Equal", 0, 1),
    Sketcher.Constraint("Equal", 1, 2),
    Sketcher.Constraint("Equal", 2, 3),
    Sketcher.Constraint("Symmetric", 0, 3, 2, 3, -2),
    Sketcher.Constraint("Symmetric", 1, 3, 3, 3, -2),
    Sketcher.Constraint("Horizontal", 0, 3, 1, 3),
    Sketcher.Constraint("Diameter", 0, Q("2.5 mm")),
    Sketcher.Constraint("DistanceY", 0, 3, -1, 1, Q("45 mm")),
    Sketcher.Constraint("DistanceX", 1, 3, 2, 3, Q("57 mm")),
    Sketcher.Constraint("DistanceX", 0, 3, 1, 3, Q("11.1 mm")),
])
doc.recompute()
hole8 = doc.addObject("PartDesign::Hole", "Hole007")
body.addObject(hole8)
hole8.Profile = sketch17
hole8.ThreadType = "None"
hole8.Diameter = 2.5
hole8.DepthType = "ThroughAll"

sketch18 = doc.addObject("Sketcher::SketchObject", "Sketch017")
body.addObject(sketch18)
sketch18.AttachmentSupport = (doc.XZ_Plane, [""])
sketch18.MapMode = "FlatFace"
sketch18.AttachmentOffset = App.Placement(Vector(0, 0, -7.5), App.Rotation())
sketch18.addGeometry([
    Part.Circle(Vector(-27.5, -65, 0), Vector(0, 0, 1), 1.2),
    Part.Circle(Vector(27.5, -65, 0), Vector(0, 0, 1), 1.2),
], False)
sketch18.addConstraint([
    Sketcher.Constraint("Equal", 0, 1),
    Sketcher.Constraint("Symmetric", 0, 3, 1, 3, -2),
    Sketcher.Constraint("Diameter", 0, Q("2.5 mm")),
    Sketcher.Constraint("DistanceY", 0, 3, -1, 1, Q("65 mm")),
    Sketcher.Constraint("DistanceX", 0, 3, 1, 3, Q("55 mm")),
])
doc.recompute()
hole9 = doc.addObject("PartDesign::Hole", "Hole008")
body.addObject(hole9)
hole9.Profile = sketch18
hole9.ThreadType = "None"
hole9.Diameter = 2.5
hole9.DepthType = "ThroughAll"
hole9.Reversed = True
doc.recompute()

fillet2 = doc.addObject("PartDesign::Fillet", "Fillet001")
body.addObject(fillet2)
fillet2.Base = (hole9, edges_at(hole9, [
    (23, 10.75, -37),
    (13, 10.75, -37),
    (-23, 10.75, -37),
    (-13, 10.75, -37),
]))
fillet2.Radius = 3

doc.recompute()
